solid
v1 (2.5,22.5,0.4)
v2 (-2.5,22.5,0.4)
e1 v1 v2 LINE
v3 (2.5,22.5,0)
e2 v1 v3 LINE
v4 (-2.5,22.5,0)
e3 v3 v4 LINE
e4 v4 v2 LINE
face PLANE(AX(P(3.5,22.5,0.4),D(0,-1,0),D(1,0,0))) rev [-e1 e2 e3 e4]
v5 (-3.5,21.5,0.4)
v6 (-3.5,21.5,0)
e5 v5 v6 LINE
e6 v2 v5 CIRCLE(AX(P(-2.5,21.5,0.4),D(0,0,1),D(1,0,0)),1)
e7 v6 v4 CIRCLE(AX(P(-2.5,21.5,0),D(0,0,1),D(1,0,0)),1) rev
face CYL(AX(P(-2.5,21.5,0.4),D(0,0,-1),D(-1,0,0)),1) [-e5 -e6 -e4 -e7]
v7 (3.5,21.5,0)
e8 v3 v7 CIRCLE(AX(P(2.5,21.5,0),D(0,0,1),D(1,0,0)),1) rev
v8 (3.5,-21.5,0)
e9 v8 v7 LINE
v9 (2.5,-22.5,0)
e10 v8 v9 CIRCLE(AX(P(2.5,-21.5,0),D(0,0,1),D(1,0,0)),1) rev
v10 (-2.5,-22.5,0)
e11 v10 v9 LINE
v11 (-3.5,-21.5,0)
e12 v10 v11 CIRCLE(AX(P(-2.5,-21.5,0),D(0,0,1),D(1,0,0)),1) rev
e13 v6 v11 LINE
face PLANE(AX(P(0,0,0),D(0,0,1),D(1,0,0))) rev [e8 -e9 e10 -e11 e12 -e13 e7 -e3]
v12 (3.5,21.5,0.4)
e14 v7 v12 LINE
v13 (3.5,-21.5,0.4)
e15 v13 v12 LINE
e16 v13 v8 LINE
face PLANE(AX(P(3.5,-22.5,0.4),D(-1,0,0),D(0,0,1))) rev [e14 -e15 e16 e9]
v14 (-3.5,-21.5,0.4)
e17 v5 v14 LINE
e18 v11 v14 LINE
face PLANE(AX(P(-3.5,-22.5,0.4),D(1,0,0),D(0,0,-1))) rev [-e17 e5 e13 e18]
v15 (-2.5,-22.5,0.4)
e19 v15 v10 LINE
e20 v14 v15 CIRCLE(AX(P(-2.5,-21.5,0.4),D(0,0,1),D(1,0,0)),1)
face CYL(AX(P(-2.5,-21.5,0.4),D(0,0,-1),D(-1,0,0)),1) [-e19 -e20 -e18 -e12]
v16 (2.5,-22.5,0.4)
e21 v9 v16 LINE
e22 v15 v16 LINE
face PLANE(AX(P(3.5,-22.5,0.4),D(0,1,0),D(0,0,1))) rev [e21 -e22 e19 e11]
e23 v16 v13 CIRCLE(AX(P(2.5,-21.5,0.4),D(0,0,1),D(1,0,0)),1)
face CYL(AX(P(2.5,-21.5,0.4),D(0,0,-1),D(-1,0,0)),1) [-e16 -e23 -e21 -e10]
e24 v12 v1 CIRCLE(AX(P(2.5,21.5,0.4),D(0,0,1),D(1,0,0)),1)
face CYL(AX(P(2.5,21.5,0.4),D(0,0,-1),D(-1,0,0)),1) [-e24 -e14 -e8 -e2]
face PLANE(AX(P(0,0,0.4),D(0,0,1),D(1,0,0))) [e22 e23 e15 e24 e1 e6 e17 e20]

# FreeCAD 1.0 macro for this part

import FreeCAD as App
import Part
import Sketcher
from FreeCAD import Vector
Q = App.Units.Quantity


def edges_at(feature, points):
    """Names of the edges that pass closest to the given points."""
    edges = feature.Shape.Edges
    near = lambda p: min(range(len(edges)), key=lambda i: edges[i].distToShape(Part.Vertex(*p))[0])
    return sorted({f"Edge{near(p) + 1}" for p in points})

doc = App.newDocument("Part")
body = doc.addObject("PartDesign::Body", "Body")

sketch1 = doc.addObject("Sketcher::SketchObject", "Sketch")
body.addObject(sketch1)
sketch1.AttachmentSupport = (doc.XY_Plane, [""])
sketch1.MapMode = "FlatFace"
sketch1.addGeometry(Part.LineSegment(Vector(-4, 22, 0), Vector(-4, -22, 0)), False)
sketch1.addGeometry(Part.LineSegment(Vector(-4, -22, 0), Vector(4, -22, 0)), False)
sketch1.addGeometry(Part.LineSegment(Vector(4, -22, 0), Vector(4, 22, 0)), False)
sketch1.addGeometry(Part.LineSegment(Vector(4, 22, 0), Vector(-4, 22, 0)), False)
sketch1.addConstraint(Sketcher.Constraint("Coincident", 0, 2, 1, 1))
sketch1.addConstraint(Sketcher.Constraint("Coincident", 1, 2, 2, 1))
sketch1.addConstraint(Sketcher.Constraint("Coincident", 2, 2, 3, 1))
sketch1.addConstraint(Sketcher.Constraint("Coincident", 3, 2, 0, 1))
sketch1.addConstraint(Sketcher.Constraint("Vertical", 0))
sketch1.addConstraint(Sketcher.Constraint("Horizontal", 1))
sketch1.addConstraint(Sketcher.Constraint("Vertical", 2))
sketch1.addConstraint(Sketcher.Constraint("Horizontal", 3))
sketch1.addConstraint(Sketcher.Constraint("Symmetric", 0, 2, 2, 2, -1, 1))
sketch1.addConstraint(Sketcher.Constraint("DistanceX", 1, 1, 1, 2, Q("7 mm")))
sketch1.addConstraint(Sketcher.Constraint("DistanceY", 0, 2, 0, 1, Q("45 mm")))
pad1 = doc.addObject("PartDesign::Pad", "Pad")
body.addObject(pad1)
pad1.Profile = sketch1
pad1.Length = 0.4
doc.recompute()

fillet = doc.addObject("PartDesign::Fillet", "Fillet")
body.addObject(fillet)
fillet.Base = (pad1, edges_at(pad1, [
    (-3.5, 22.5, 0.2),
    (3.5, 22.5, 0.2),
    (3.5, -22.5, 0.2),
    (-3.5, -22.5, 0.2),
]))
fillet.Radius = 1

doc.recompute()
